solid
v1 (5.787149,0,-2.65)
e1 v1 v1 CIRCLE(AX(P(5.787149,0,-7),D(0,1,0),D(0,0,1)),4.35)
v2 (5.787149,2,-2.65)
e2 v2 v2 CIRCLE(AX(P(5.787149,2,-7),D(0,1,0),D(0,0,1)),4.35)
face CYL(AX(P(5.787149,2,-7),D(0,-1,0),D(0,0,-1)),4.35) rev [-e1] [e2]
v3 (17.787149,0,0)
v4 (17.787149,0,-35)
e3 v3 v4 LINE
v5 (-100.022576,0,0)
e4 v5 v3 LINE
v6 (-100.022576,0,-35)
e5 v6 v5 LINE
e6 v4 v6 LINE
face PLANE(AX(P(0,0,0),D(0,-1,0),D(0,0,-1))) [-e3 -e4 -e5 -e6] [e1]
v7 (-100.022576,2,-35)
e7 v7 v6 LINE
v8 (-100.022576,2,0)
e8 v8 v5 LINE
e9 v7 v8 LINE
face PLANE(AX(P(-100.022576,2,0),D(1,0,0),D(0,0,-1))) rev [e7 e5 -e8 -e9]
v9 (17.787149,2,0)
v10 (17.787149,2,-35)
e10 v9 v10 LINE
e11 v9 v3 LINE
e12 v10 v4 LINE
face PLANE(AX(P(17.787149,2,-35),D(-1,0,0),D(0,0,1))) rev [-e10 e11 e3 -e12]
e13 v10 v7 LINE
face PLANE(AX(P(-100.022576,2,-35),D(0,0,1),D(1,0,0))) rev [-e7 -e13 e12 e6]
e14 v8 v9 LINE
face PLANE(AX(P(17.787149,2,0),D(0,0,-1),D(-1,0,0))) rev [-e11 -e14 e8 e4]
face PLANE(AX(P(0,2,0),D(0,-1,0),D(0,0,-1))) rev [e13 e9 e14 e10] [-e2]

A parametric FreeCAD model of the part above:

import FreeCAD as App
import Part
import Sketcher

V = App.Vector
Q = App.Units.Quantity


def add_polygon(sketch, points):
    """Adds a closed chain of lines whose ends are joined by coincident constraints."""
    first, n = sketch.GeometryCount, len(points)
    for a, b in zip(points, points[1:] + points[:1]):
        sketch.addGeometry(Part.LineSegment(App.Vector(*a, 0), App.Vector(*b, 0)), False)
    for i in range(n):
        sketch.addConstraint(Sketcher.Constraint("Coincident", first + i, 2, first + (i + 1) % n, 1))

doc = App.newDocument("Part")
params = doc.addObject("Spreadsheet::Sheet", "Params")
for row, (alias, value) in enumerate([
    ("sketch1_diameter", "8.7 mm"),
    ("sketch1_height", "35 mm"),
    ("pad1_length", "2 mm"),
], start=1):
    params.set(f"A{row}", alias)
    params.set(f"B{row}", "=" + value)
    params.setAlias(f"B{row}", alias)

body = doc.addObject("PartDesign::Body", "Body")

sketch1 = doc.addObject("Sketcher::SketchObject", "Sketch")
body.addObject(sketch1)
sketch1.AttachmentSupport = (doc.XZ_Plane, [""])
sketch1.MapMode = "FlatFace"
add_polygon(sketch1, [(-100.022576, -35), (-100.022576, 0), (17.787149, 0), (17.787149, -35)])
sketch1.addGeometry(Part.Circle(V(5.787149, -7, 0), V(0, 0, 1), 4.35), False)
sketch1.addConstraint(Sketcher.Constraint("Vertical", 0))
sketch1.addConstraint(Sketcher.Constraint("Horizontal", 1))
sketch1.addConstraint(Sketcher.Constraint("Vertical", 2))
sketch1.addConstraint(Sketcher.Constraint("Horizontal", 3))
sketch1.addConstraint(Sketcher.Constraint("PointOnObject", 0, 2, -1))
sketch1.addConstraint(Sketcher.Constraint("Diameter", 4, Q("8.7 mm")))
sketch1.addConstraint(Sketcher.Constraint("DistanceY", 0, 1, 0, 2, Q("35 mm")))
sketch1.addConstraint(Sketcher.Constraint("DistanceY", 4, 3, -1, 1, Q("7 mm")))
sketch1.addConstraint(Sketcher.Constraint("DistanceX", 4, 3, 1, 2, Q("12 mm")))
sketch1.addConstraint(Sketcher.Constraint("DistanceX", 1, 1, 1, 2, Q("117.809725 mm")))
sketch1.addConstraint(Sketcher.Constraint("DistanceX", -1, 1, 4, 3, Q("5.787149 mm")))
sketch1.setExpression("Constraints[9]", "Params.sketch1_diameter")
sketch1.setExpression("Constraints[10]", "Params.sketch1_height")
pad1 = doc.addObject("PartDesign::Pad", "Pad")
body.addObject(pad1)
pad1.Profile = sketch1
pad1.setExpression("Length", "Params.pad1_length")
pad1.Reversed = True

doc.recompute()
